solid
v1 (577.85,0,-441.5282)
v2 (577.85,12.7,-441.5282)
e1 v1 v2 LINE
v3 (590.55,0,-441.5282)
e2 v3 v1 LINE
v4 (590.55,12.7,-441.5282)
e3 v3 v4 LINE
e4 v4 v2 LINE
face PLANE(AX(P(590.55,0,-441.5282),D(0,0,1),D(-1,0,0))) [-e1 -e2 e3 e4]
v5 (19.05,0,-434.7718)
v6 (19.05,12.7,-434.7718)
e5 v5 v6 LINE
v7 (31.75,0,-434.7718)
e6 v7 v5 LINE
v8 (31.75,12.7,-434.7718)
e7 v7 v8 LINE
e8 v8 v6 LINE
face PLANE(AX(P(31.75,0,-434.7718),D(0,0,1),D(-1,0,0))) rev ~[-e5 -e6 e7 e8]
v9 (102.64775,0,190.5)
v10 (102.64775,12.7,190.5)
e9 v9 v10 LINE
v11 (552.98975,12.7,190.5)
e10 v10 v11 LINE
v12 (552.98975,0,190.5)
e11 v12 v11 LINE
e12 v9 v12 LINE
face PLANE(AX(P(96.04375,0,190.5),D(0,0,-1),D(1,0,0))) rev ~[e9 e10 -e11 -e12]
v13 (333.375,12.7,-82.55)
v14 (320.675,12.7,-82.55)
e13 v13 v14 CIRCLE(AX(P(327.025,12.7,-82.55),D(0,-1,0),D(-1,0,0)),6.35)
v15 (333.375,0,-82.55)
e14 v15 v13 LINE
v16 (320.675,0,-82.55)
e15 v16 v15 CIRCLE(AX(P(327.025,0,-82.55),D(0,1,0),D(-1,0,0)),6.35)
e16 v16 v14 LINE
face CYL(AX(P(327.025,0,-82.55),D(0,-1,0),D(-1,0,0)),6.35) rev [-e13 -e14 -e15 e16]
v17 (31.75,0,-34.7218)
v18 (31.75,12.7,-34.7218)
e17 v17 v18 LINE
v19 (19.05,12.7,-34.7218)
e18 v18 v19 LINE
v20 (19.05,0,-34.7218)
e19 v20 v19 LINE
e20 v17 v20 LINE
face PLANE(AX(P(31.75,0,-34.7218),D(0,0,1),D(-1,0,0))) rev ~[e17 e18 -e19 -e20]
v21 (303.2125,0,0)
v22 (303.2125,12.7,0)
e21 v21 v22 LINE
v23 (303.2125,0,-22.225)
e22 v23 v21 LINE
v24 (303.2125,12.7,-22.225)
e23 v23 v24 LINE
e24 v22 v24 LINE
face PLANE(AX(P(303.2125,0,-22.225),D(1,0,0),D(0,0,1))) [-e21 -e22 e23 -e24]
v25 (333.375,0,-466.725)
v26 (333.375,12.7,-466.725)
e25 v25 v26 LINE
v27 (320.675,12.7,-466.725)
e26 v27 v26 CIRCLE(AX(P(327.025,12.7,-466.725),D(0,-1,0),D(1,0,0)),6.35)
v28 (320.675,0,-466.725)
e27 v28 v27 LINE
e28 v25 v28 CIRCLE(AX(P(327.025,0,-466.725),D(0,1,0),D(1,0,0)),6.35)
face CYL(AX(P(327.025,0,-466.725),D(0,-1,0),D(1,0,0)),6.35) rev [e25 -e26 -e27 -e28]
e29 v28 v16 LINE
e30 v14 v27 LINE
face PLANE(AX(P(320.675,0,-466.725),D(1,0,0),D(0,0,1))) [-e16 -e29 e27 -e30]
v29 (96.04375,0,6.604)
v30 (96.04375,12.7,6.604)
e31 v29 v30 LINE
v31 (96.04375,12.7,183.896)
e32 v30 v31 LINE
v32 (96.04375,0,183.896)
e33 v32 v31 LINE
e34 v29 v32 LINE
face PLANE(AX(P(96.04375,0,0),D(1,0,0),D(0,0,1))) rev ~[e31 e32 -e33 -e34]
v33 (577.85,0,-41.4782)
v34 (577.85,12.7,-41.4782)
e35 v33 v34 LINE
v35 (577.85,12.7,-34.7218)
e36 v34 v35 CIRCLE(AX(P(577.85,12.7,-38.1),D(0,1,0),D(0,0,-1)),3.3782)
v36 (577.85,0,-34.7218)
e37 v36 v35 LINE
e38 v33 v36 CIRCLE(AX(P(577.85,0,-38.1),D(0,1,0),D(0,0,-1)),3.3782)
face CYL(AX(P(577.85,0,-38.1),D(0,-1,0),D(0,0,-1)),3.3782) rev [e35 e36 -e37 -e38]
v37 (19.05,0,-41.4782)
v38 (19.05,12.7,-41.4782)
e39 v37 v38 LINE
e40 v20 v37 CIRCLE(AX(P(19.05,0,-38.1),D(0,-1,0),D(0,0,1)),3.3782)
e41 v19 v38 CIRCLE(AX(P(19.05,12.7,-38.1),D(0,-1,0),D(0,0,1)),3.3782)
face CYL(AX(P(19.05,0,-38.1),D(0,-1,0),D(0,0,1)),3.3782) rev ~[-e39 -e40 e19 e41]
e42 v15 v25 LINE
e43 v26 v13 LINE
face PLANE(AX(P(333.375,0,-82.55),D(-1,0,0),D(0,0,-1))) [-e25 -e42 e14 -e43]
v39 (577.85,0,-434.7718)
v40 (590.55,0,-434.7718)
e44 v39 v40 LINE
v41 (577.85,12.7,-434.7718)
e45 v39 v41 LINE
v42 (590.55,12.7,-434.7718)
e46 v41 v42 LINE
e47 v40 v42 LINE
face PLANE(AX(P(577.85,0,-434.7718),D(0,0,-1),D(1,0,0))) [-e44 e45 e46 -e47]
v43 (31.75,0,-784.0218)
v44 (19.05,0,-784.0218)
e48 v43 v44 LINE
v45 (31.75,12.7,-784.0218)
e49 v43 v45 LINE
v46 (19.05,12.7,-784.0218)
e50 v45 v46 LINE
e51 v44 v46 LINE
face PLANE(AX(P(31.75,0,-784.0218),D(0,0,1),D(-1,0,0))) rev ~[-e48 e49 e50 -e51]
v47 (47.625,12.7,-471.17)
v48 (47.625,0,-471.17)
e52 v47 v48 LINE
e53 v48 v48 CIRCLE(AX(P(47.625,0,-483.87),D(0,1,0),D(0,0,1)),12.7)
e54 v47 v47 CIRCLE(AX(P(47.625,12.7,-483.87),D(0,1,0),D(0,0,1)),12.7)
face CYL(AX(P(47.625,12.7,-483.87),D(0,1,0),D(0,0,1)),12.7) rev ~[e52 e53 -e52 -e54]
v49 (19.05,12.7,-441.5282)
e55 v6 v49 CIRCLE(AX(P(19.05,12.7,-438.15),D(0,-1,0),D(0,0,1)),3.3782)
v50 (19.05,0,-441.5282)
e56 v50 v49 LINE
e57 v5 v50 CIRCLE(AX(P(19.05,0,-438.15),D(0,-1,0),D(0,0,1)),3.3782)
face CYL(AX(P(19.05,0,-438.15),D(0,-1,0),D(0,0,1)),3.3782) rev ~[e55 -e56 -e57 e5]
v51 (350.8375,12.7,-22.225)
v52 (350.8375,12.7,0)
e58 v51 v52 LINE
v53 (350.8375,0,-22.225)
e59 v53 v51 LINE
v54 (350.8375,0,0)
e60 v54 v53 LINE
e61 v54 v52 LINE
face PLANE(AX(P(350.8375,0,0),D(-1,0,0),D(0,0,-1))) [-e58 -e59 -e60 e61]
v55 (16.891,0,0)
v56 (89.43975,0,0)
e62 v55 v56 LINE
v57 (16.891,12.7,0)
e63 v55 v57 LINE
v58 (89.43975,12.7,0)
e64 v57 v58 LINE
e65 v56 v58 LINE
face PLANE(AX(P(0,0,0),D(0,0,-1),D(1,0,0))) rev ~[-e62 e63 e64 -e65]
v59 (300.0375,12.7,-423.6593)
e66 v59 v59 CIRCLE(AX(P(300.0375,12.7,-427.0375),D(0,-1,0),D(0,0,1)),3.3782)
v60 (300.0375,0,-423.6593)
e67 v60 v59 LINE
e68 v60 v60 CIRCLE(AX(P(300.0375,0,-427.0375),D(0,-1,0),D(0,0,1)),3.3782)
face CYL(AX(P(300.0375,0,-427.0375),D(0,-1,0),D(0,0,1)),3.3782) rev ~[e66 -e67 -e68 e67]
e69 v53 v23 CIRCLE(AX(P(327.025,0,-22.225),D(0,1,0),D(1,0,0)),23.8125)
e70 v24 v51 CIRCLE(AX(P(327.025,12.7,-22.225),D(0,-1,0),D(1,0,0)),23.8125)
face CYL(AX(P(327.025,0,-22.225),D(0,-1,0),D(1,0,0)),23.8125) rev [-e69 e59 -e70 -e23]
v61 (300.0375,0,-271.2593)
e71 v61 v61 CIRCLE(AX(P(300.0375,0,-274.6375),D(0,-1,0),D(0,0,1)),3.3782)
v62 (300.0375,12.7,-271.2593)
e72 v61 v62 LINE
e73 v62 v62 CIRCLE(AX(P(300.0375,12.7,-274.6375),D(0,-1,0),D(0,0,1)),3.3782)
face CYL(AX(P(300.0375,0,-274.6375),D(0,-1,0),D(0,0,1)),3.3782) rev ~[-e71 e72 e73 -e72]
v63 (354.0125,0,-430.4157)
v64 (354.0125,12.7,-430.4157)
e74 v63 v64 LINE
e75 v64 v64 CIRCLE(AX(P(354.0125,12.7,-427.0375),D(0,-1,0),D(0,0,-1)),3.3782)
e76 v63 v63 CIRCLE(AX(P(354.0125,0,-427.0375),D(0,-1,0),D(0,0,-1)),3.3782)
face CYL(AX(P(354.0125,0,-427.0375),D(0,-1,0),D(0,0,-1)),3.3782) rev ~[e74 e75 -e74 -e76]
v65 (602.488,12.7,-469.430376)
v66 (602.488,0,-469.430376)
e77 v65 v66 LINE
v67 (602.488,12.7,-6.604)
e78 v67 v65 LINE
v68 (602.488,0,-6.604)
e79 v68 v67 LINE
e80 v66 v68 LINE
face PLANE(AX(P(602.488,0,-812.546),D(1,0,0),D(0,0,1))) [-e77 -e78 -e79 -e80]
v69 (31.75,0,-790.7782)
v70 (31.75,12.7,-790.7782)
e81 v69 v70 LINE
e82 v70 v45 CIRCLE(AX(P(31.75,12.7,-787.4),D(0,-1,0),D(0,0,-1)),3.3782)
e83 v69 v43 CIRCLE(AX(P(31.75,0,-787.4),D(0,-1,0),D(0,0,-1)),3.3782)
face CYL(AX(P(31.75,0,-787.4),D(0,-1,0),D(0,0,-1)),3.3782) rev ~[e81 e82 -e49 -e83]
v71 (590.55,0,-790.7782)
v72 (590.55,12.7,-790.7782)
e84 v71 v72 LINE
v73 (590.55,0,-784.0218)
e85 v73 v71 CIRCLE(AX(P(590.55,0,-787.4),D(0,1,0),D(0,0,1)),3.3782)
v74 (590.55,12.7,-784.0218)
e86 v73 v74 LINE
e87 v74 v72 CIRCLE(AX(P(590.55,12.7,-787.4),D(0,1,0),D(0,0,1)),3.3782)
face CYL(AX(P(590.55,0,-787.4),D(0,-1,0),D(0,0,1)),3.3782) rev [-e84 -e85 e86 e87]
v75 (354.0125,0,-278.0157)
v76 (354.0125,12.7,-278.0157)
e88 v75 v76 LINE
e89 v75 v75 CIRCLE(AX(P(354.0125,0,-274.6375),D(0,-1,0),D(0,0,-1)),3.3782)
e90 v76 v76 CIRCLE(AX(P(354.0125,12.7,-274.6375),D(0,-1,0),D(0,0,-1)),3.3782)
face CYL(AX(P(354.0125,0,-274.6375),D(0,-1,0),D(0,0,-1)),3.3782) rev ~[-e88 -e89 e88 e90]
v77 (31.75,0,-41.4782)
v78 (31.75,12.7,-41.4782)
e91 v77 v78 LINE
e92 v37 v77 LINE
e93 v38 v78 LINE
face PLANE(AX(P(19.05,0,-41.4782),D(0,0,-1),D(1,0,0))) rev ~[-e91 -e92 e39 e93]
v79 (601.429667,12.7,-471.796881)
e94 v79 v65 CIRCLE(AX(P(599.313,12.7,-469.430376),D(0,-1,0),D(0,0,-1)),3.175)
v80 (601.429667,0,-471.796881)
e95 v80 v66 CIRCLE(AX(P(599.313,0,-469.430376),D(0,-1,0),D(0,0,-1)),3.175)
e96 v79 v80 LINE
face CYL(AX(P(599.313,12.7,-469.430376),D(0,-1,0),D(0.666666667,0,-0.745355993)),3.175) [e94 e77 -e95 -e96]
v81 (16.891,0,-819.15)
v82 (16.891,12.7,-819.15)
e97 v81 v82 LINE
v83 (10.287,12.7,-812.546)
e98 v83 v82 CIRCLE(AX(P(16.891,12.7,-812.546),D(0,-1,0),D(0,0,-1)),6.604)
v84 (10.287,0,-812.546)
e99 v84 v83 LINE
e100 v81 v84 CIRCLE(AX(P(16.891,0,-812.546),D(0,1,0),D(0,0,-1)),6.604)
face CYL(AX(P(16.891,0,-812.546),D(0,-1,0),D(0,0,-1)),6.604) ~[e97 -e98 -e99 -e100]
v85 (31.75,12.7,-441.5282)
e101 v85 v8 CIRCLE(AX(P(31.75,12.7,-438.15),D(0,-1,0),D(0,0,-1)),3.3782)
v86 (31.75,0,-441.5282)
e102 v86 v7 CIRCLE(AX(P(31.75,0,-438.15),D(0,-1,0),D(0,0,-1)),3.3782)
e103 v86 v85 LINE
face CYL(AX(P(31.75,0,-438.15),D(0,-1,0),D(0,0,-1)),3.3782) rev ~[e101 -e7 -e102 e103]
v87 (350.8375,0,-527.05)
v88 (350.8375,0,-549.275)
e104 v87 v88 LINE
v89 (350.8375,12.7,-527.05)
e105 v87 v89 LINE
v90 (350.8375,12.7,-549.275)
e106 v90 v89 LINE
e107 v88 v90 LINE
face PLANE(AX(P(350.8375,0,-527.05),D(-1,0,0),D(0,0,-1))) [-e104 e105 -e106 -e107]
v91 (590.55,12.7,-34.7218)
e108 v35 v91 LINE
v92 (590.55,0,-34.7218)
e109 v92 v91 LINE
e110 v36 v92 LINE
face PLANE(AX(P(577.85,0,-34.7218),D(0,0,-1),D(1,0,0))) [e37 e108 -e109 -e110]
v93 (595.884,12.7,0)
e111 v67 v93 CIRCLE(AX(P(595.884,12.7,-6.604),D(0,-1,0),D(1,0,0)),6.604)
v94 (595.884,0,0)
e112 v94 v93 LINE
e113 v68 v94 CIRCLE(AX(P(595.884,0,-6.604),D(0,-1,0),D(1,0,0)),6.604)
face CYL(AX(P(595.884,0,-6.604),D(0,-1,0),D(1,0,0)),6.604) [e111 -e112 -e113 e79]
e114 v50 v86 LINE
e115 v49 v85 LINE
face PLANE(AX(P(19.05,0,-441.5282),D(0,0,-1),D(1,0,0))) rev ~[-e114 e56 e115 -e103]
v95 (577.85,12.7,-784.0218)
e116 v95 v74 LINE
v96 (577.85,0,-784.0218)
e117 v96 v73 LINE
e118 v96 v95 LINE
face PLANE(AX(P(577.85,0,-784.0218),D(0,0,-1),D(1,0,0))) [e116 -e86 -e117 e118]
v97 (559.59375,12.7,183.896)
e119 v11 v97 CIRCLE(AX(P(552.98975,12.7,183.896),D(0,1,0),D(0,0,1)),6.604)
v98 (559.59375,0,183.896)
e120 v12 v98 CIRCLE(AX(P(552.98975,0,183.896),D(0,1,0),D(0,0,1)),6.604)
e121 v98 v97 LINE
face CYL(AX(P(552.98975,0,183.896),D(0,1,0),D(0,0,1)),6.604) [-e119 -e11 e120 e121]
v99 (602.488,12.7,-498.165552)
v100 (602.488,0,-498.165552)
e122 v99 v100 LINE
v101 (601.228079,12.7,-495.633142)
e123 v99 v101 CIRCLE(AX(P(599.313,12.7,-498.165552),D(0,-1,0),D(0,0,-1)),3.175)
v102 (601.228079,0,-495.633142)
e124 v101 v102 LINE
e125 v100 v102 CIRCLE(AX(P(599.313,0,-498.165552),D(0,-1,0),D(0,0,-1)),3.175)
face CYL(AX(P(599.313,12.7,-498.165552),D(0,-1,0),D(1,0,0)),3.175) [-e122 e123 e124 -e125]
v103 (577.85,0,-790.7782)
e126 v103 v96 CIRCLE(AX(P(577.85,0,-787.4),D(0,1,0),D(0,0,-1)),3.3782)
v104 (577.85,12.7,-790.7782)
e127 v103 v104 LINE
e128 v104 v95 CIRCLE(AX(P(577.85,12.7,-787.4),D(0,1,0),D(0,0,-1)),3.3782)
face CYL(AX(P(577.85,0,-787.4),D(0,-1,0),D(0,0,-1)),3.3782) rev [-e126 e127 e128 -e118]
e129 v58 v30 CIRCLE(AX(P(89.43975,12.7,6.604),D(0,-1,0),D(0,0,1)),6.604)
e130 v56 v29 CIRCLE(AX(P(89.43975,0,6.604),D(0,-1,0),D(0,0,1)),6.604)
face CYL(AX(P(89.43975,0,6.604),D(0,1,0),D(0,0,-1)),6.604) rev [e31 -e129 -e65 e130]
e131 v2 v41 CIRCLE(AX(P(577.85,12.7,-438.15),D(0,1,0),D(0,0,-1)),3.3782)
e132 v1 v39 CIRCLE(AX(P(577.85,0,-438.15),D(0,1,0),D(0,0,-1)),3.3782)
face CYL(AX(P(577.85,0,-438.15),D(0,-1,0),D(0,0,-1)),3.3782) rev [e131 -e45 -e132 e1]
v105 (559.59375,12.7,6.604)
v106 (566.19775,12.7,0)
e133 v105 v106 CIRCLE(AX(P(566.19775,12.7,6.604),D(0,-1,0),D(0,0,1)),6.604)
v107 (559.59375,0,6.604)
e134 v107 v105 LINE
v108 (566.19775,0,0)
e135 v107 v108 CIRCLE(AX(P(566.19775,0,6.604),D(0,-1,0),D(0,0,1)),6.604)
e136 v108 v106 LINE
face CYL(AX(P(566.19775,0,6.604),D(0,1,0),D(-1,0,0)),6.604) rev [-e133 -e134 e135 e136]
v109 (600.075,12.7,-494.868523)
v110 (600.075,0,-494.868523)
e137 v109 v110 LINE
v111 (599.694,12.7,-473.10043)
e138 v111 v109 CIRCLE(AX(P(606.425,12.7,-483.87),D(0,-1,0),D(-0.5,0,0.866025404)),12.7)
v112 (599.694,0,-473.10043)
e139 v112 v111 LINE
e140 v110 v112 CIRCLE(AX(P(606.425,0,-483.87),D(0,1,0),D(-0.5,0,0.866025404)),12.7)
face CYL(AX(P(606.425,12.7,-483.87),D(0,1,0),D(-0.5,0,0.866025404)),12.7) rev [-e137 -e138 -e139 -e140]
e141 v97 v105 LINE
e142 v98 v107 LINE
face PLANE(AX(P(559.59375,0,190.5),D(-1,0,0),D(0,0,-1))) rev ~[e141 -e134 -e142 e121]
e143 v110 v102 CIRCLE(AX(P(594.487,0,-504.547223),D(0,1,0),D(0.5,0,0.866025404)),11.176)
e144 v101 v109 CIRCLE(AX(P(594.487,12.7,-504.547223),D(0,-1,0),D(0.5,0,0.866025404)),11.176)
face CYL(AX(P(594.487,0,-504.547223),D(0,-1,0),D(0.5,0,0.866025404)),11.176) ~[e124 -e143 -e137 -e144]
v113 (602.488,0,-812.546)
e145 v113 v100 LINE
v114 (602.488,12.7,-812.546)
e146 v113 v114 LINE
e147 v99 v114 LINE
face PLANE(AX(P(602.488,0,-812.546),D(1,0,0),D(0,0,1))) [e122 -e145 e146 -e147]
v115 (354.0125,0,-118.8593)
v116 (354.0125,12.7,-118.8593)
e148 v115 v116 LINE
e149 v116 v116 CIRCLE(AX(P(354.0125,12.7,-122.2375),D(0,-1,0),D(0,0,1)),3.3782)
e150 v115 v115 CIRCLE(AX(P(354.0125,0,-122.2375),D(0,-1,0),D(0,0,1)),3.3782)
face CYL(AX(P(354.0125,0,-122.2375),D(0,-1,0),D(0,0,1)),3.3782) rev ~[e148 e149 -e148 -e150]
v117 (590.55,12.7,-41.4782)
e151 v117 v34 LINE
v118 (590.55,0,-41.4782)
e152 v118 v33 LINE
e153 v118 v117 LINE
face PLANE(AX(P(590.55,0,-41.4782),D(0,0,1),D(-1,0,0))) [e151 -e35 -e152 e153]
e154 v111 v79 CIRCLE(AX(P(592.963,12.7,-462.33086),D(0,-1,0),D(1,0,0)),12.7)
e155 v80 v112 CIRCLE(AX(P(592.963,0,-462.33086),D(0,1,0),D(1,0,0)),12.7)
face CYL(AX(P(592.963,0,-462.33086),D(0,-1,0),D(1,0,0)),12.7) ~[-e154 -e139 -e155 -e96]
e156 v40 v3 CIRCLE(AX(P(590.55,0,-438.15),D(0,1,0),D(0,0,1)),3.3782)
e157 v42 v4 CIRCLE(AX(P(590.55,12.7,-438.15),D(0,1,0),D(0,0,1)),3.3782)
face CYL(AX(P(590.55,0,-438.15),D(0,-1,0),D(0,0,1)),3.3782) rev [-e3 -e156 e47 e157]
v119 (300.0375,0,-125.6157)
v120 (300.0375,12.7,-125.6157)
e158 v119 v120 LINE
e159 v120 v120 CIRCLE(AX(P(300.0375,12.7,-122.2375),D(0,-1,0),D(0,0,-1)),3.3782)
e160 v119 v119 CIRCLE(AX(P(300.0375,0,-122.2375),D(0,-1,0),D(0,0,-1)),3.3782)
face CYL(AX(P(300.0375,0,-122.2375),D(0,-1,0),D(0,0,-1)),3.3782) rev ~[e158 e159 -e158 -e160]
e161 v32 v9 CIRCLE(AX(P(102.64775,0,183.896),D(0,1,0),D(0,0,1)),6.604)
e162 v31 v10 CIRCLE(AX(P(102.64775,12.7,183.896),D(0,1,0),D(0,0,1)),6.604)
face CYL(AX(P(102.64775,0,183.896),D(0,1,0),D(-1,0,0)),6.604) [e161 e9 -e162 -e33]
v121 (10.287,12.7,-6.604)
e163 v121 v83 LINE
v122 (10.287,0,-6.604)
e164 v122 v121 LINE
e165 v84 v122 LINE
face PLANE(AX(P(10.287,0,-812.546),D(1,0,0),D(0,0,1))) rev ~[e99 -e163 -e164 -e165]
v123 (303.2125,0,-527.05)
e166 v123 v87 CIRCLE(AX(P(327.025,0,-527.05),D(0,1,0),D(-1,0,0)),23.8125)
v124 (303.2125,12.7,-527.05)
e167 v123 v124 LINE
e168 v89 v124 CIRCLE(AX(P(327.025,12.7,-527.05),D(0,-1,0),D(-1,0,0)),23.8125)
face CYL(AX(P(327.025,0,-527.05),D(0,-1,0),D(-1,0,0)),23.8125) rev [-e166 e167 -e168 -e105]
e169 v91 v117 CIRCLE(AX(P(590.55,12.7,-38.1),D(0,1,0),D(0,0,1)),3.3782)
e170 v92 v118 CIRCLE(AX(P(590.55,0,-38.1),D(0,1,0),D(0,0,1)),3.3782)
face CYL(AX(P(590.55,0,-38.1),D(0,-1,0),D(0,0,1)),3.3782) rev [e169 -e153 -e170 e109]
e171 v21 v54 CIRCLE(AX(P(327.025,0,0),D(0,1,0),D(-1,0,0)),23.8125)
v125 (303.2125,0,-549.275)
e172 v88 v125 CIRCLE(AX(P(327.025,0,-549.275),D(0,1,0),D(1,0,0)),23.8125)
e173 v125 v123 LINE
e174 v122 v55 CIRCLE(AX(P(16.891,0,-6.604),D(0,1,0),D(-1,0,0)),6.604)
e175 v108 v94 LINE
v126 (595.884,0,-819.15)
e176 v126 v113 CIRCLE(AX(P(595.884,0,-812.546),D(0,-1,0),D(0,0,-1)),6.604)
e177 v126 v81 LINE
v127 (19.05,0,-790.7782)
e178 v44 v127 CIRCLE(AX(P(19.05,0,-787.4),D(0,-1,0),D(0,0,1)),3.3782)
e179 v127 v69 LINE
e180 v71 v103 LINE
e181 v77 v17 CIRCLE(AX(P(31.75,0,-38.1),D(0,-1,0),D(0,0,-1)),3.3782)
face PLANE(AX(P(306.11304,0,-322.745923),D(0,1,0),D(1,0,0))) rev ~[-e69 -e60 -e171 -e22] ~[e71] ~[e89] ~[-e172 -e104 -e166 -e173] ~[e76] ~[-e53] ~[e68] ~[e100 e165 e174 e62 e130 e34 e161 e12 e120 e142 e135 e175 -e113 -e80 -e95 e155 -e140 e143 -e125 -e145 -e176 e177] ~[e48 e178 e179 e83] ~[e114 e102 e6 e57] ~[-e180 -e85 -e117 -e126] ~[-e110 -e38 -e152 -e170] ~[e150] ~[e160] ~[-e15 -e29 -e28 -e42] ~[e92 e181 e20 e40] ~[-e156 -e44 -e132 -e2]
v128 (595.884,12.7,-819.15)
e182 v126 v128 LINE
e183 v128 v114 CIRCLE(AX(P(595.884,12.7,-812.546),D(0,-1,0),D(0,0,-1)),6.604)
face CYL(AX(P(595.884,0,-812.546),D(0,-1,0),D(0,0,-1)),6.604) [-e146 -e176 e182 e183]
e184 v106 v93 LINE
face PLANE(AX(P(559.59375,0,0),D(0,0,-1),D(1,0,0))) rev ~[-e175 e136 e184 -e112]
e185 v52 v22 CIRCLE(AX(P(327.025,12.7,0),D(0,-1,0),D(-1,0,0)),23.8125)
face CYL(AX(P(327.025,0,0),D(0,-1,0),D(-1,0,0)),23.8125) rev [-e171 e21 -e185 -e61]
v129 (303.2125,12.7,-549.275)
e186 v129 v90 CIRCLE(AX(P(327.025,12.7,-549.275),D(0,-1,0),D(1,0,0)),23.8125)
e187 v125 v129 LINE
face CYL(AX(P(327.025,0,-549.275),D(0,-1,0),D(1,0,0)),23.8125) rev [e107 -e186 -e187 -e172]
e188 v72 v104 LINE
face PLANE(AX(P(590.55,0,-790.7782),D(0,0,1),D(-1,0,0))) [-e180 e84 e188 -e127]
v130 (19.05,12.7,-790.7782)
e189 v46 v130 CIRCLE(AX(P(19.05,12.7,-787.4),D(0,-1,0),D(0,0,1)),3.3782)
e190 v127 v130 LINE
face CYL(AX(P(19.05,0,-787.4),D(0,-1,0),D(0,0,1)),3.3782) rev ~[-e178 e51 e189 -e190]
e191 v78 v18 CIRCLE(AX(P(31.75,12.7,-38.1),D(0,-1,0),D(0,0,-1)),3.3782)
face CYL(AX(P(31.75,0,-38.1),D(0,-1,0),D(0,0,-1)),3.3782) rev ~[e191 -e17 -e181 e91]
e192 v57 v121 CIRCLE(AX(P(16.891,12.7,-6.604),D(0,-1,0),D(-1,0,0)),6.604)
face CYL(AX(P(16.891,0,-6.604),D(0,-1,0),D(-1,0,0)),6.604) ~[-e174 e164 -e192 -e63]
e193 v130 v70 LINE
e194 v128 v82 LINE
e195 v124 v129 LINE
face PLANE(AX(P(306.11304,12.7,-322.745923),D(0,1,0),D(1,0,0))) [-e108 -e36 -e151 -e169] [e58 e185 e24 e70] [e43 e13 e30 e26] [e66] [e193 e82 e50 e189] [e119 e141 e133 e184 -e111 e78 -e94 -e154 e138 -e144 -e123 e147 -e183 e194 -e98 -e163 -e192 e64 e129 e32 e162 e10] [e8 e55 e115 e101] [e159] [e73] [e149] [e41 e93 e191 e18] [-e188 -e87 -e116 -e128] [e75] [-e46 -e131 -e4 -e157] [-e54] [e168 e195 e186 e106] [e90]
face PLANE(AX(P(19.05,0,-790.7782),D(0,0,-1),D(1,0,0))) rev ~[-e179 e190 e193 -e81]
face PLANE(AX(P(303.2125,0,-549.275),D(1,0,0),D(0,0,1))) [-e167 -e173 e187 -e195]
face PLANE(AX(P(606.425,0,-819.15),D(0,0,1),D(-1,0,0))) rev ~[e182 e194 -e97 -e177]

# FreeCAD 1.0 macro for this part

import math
import FreeCAD as App
import Part
import Sketcher

V = App.Vector
Q = App.Units.Quantity


def edges_at(feature, points):
    """Names of the edges that pass closest to the given points."""
    edges = feature.Shape.Edges
    near = lambda p: min(range(len(edges)), key=lambda i: edges[i].distToShape(Part.Vertex(*p))[0])
    return sorted({f"Edge{near(p) + 1}" for p in points})

doc = App.newDocument("Part")
body = doc.addObject("PartDesign::Body", "Body")

sketch1 = body.newObject("Sketcher::SketchObject", "Sketch")
sketch1.AttachmentSupport = (doc.getObject("XZ_Plane"), [""])
sketch1.MapMode = "FlatFace"
sketch1.addGeometry(Part.LineSegment(V(0, 0, 0), V(96, 0, 0)), False)
sketch1.addGeometry(Part.LineSegment(V(96, 0, 0), V(96, 190.5, 0)), False)
sketch1.addGeometry(Part.LineSegment(V(96, 190.5, 0), V(559.6, 190.5, 0)), False)
sketch1.addGeometry(Part.LineSegment(V(559.6, 190.5, 0), V(559.6, 0, 0)), False)
sketch1.addGeometry(Part.LineSegment(V(559.6, 0, 0), V(606.4, 0, 0)), False)
sketch1.addGeometry(Part.LineSegment(V(606.4, 0, 0), V(606.4, -819.1, 0)), False)
sketch1.addGeometry(Part.LineSegment(V(606.4, -819.1, 0), V(0, -819.1, 0)), False)
sketch1.addGeometry(Part.LineSegment(V(0, -819.1, 0), V(0, 0, 0)), False)
sketch1.addGeometry(Part.ArcOfCircle(Part.Circle(V(19.1, -38.1, 0), V(0, 0, 1), 3.4), math.radians(90), math.radians(270)), False)
sketch1.addGeometry(Part.LineSegment(V(19.1, -41.5, 0), V(31.8, -41.5, 0)), False)
sketch1.addGeometry(Part.ArcOfCircle(Part.Circle(V(31.8, -38.1, 0), V(0, 0, 1), 3.4), math.radians(-90), math.radians(90)), False)
sketch1.addGeometry(Part.LineSegment(V(31.8, -34.7, 0), V(19.1, -34.7, 0)), False)
sketch1.addGeometry(Part.LineSegment(V(577.9, -41.5, 0), V(590.5, -41.5, 0)), False)
sketch1.addGeometry(Part.ArcOfCircle(Part.Circle(V(590.5, -38.1, 0), V(0, 0, 1), 3.4), math.radians(-90), math.radians(90)), False)
sketch1.addGeometry(Part.LineSegment(V(590.5, -34.7, 0), V(577.9, -34.7, 0)), False)
sketch1.addGeometry(Part.ArcOfCircle(Part.Circle(V(577.9, -38.1, 0), V(0, 0, 1), 3.4), math.radians(90), math.radians(270)), False)
sketch1.addGeometry(Part.ArcOfCircle(Part.Circle(V(19.1, -438.1, 0), V(0, 0, 1), 3.4), math.radians(90), math.radians(270)), False)
sketch1.addGeometry(Part.LineSegment(V(19.1, -441.5, 0), V(31.8, -441.5, 0)), False)
sketch1.addGeometry(Part.ArcOfCircle(Part.Circle(V(31.8, -438.1, 0), V(0, 0, 1), 3.4), math.radians(-90), math.radians(90)), False)
sketch1.addGeometry(Part.LineSegment(V(31.8, -434.8, 0), V(19.1, -434.8, 0)), False)
sketch1.addGeometry(Part.ArcOfCircle(Part.Circle(V(31.8, -787.4, 0), V(0, 0, 1), 3.4), math.radians(-90), math.radians(90)), False)
sketch1.addGeometry(Part.LineSegment(V(31.8, -784, 0), V(19.1, -784, 0)), False)
sketch1.addGeometry(Part.ArcOfCircle(Part.Circle(V(19.1, -787.4, 0), V(0, 0, 1), 3.4), math.radians(90), math.radians(270)), False)
sketch1.addGeometry(Part.LineSegment(V(19.1, -790.8, 0), V(31.8, -790.8, 0)), False)
sketch1.addGeometry(Part.LineSegment(V(577.9, -441.5, 0), V(590.5, -441.5, 0)), False)
sketch1.addGeometry(Part.ArcOfCircle(Part.Circle(V(590.5, -438.1, 0), V(0, 0, 1), 3.4), math.radians(-90), math.radians(90)), False)
sketch1.addGeometry(Part.LineSegment(V(590.5, -434.8, 0), V(577.9, -434.8, 0)), False)
sketch1.addGeometry(Part.ArcOfCircle(Part.Circle(V(577.9, -438.1, 0), V(0, 0, 1), 3.4), math.radians(90), math.radians(270)), False)
sketch1.addGeometry(Part.LineSegment(V(590.5, -784, 0), V(577.9, -784, 0)), False)
sketch1.addGeometry(Part.ArcOfCircle(Part.Circle(V(577.9, -787.4, 0), V(0, 0, 1), 3.4), math.radians(90), math.radians(270)), False)
sketch1.addGeometry(Part.LineSegment(V(577.9, -790.8, 0), V(590.5, -790.8, 0)), False)
sketch1.addGeometry(Part.ArcOfCircle(Part.Circle(V(590.5, -787.4, 0), V(0, 0, 1), 3.4), math.radians(-90), math.radians(90)), False)
sketch1.addConstraint(Sketcher.Constraint("Coincident", 0, 2, 1, 1))
sketch1.addConstraint(Sketcher.Constraint("Coincident", 1, 2, 2, 1))
sketch1.addConstraint(Sketcher.Constraint("Coincident", 2, 2, 3, 1))
sketch1.addConstraint(Sketcher.Constraint("Coincident", 3, 2, 4, 1))
sketch1.addConstraint(Sketcher.Constraint("Coincident", 4, 2, 5, 1))
sketch1.addConstraint(Sketcher.Constraint("Coincident", 5, 2, 6, 1))
sketch1.addConstraint(Sketcher.Constraint("Coincident", 6, 2, 7, 1))
sketch1.addConstraint(Sketcher.Constraint("Coincident", 7, 2, 0, 1))
sketch1.addConstraint(Sketcher.Constraint("Tangent", 8, 2, 9, 1))
sketch1.addConstraint(Sketcher.Constraint("Tangent", 9, 2, 10, 1))
sketch1.addConstraint(Sketcher.Constraint("Tangent", 10, 2, 11, 1))
sketch1.addConstraint(Sketcher.Constraint("Tangent", 11, 2, 8, 1))
sketch1.addConstraint(Sketcher.Constraint("Tangent", 12, 2, 13, 1))
sketch1.addConstraint(Sketcher.Constraint("Tangent", 13, 2, 14, 1))
sketch1.addConstraint(Sketcher.Constraint("Tangent", 14, 2, 15, 1))
sketch1.addConstraint(Sketcher.Constraint("Tangent", 15, 2, 12, 1))
sketch1.addConstraint(Sketcher.Constraint("Tangent", 16, 2, 17, 1))
sketch1.addConstraint(Sketcher.Constraint("Tangent", 17, 2, 18, 1))
sketch1.addConstraint(Sketcher.Constraint("Tangent", 18, 2, 19, 1))
sketch1.addConstraint(Sketcher.Constraint("Tangent", 19, 2, 16, 1))
sketch1.addConstraint(Sketcher.Constraint("Tangent", 20, 2, 21, 1))
sketch1.addConstraint(Sketcher.Constraint("Tangent", 21, 2, 22, 1))
sketch1.addConstraint(Sketcher.Constraint("Tangent", 22, 2, 23, 1))
sketch1.addConstraint(Sketcher.Constraint("Tangent", 23, 2, 20, 1))
sketch1.addConstraint(Sketcher.Constraint("Tangent", 24, 2, 25, 1))
sketch1.addConstraint(Sketcher.Constraint("Tangent", 25, 2, 26, 1))
sketch1.addConstraint(Sketcher.Constraint("Tangent", 26, 2, 27, 1))
sketch1.addConstraint(Sketcher.Constraint("Tangent", 27, 2, 24, 1))
sketch1.addConstraint(Sketcher.Constraint("Tangent", 28, 2, 29, 1))
sketch1.addConstraint(Sketcher.Constraint("Tangent", 29, 2, 30, 1))
sketch1.addConstraint(Sketcher.Constraint("Tangent", 30, 2, 31, 1))
sketch1.addConstraint(Sketcher.Constraint("Tangent", 31, 2, 28, 1))
sketch1.addConstraint(Sketcher.Constraint("Horizontal", 0))
sketch1.addConstraint(Sketcher.Constraint("Vertical", 1))
sketch1.addConstraint(Sketcher.Constraint("Horizontal", 2))
sketch1.addConstraint(Sketcher.Constraint("Vertical", 3))
sketch1.addConstraint(Sketcher.Constraint("Horizontal", 4))
sketch1.addConstraint(Sketcher.Constraint("Vertical", 5))
sketch1.addConstraint(Sketcher.Constraint("Horizontal", 6))
sketch1.addConstraint(Sketcher.Constraint("Vertical", 7))
sketch1.addConstraint(Sketcher.Constraint("Horizontal", 9))
sketch1.addConstraint(Sketcher.Constraint("Horizontal", 11))
sketch1.addConstraint(Sketcher.Constraint("Horizontal", 12))
sketch1.addConstraint(Sketcher.Constraint("Horizontal", 14))
sketch1.addConstraint(Sketcher.Constraint("Horizontal", 17))
sketch1.addConstraint(Sketcher.Constraint("Horizontal", 19))
sketch1.addConstraint(Sketcher.Constraint("Horizontal", 21))
sketch1.addConstraint(Sketcher.Constraint("Horizontal", 23))
sketch1.addConstraint(Sketcher.Constraint("Horizontal", 24))
sketch1.addConstraint(Sketcher.Constraint("Horizontal", 26))
sketch1.addConstraint(Sketcher.Constraint("Horizontal", 28))
sketch1.addConstraint(Sketcher.Constraint("Horizontal", 30))
sketch1.addConstraint(Sketcher.Constraint("Coincident", 7, 2, -1, 1))
sketch1.addConstraint(Sketcher.Constraint("Equal", 10, 13))
sketch1.addConstraint(Sketcher.Constraint("Equal", 15, 16))
sketch1.addConstraint(Sketcher.Constraint("Equal", 18, 20))
sketch1.addConstraint(Sketcher.Constraint("Equal", 22, 25))
sketch1.addConstraint(Sketcher.Constraint("Equal", 27, 29))
sketch1.addConstraint(Sketcher.Constraint("PointOnObject", 3, 2, -1))
sketch1.addConstraint(Sketcher.Constraint("Horizontal", 10, 3, 13, 3))
sketch1.addConstraint(Sketcher.Constraint("Horizontal", 18, 3, 25, 3))
sketch1.addConstraint(Sketcher.Constraint("Horizontal", 22, 3, 29, 3))
sketch1.addConstraint(Sketcher.Constraint("Vertical", 8, 3, 16, 3))
sketch1.addConstraint(Sketcher.Constraint("Vertical", 10, 3, 18, 3))
sketch1.addConstraint(Sketcher.Constraint("Vertical", 18, 3, 20, 3))
sketch1.addConstraint(Sketcher.Constraint("Vertical", 16, 3, 22, 3))
sketch1.addConstraint(Sketcher.Constraint("Vertical", 13, 3, 25, 3))
sketch1.addConstraint(Sketcher.Constraint("Vertical", 15, 3, 27, 3))
sketch1.addConstraint(Sketcher.Constraint("Vertical", 27, 3, 29, 3))
sketch1.addConstraint(Sketcher.Constraint("Vertical", 25, 3, 31, 3))
sketch1.addConstraint(Sketcher.Constraint("Equal", 11, 12))
sketch1.addConstraint(Sketcher.Constraint("DistanceX", 9, 1, 9, 2, Q("0.5 in")))
sketch1.addConstraint(Sketcher.Constraint("DistanceY", 1, 1, 1, 2, Q("7.5 in")))
sketch1.addConstraint(Sketcher.Constraint("DistanceY", 20, 3, -1, 1, Q("31 in")))
sketch1.addConstraint(Sketcher.Constraint("Radius", 8, Q("0.133 in")))
sketch1.addConstraint(Sketcher.Constraint("DistanceX", 10, 3, 13, 3, Q("22 in")))
sketch1.addConstraint(Sketcher.Constraint("DistanceY", 10, 3, 1, 2, Q("9 in")))
sketch1.addConstraint(Sketcher.Constraint("DistanceY", 5, 2, 25, 3, Q("15 in")))
sketch1.addConstraint(Sketcher.Constraint("DistanceX", 2, 1, 2, 2, Q("18.25 in")))
sketch1.addConstraint(Sketcher.Constraint("DistanceY", 5, 2, 5, 1, Q("32.25 in")))
sketch1.addConstraint(Sketcher.Constraint("DistanceX", 0, 1, 0, 2, Q("3.78125 in")))
sketch1.addConstraint(Sketcher.Constraint("DistanceX", 4, 1, 4, 2, Q("1.84375 in")))
sketch1.addConstraint(Sketcher.Constraint("DistanceX", -1, 1, 8, 3, Q("0.75 in")))
pad1 = body.newObject("PartDesign::Pad", "Pad")
pad1.Profile = sketch1
pad1.Length = Q("0.5 in")
pad1.Reversed = True
doc.recompute()

fillet = body.newObject("PartDesign::Fillet", "Fillet")
fillet.Base = (pad1, edges_at(pad1, [(559.594, 6.35, 0), (96.044, 6.35, 0)]))
fillet.Radius = Q("0.26 in")
doc.recompute()

fillet2 = body.newObject("PartDesign::Fillet", "Fillet001")
fillet2.Base = (fillet, edges_at(fillet, [
    (0, 6.35, -819.15),
    (606.425, 6.35, -819.15),
    (606.425, 6.35, 0),
    (559.594, 6.35, 190.5),
    (96.044, 6.35, 190.5),
    (0, 6.35, 0),
]))
fillet2.Radius = Q("0.26 in")

sketch2 = body.newObject("Sketcher::SketchObject", "Sketch001")
sketch2.AttachmentSupport = (doc.getObject("XZ_Plane"), [""])
sketch2.MapMode = "FlatFace"
sketch2.AttachmentOffset = App.Placement(V(0, 0, -0.5 * 25.4), App.Rotation())
sketch2.addGeometry(Part.Circle(V(48, -484, 0), V(0, 0, 1), 13), False)
sketch2.addGeometry(Part.LineSegment(V(606, -462, 0), V(606, -506, 0)), False)
sketch2.addGeometry(Part.ArcOfCircle(Part.Circle(V(594, -506, 0), V(0, 0, 1), 13), math.radians(0), math.radians(60)), False)
sketch2.addGeometry(Part.ArcOfCircle(Part.Circle(V(606, -484, 0), V(0, 0, 1), 13), math.radians(120), math.radians(240)), False)
sketch2.addGeometry(Part.ArcOfCircle(Part.Circle(V(594, -462, 0), V(0, 0, 1), 13), math.radians(-60), math.radians(0)), False)
sketch2.addConstraint(Sketcher.Constraint("Tangent", 1, 2, 2, 1))
sketch2.addConstraint(Sketcher.Constraint("Tangent", 2, 2, 3, 2))
sketch2.addConstraint(Sketcher.Constraint("Tangent", 3, 1, 4, 1))
sketch2.addConstraint(Sketcher.Constraint("Tangent", 4, 2, 1, 1))
sketch2.addConstraint(Sketcher.Constraint("Vertical", 1))
sketch2.addConstraint(Sketcher.Constraint("Equal", 0, 2))
sketch2.addConstraint(Sketcher.Constraint("Equal", 2, 3))
sketch2.addConstraint(Sketcher.Constraint("Equal", 3, 4))
sketch2.addConstraint(Sketcher.Constraint("Horizontal", 0, 3, 3, 3))
sketch2.addConstraint(Sketcher.Constraint("Vertical", 3, 3, 1, 2))
sketch2.addConstraint(Sketcher.Constraint("Diameter", 0, Q("1 in")))
sketch2.addConstraint(Sketcher.Constraint("DistanceX", 0, 3, 3, 3, Q("22 in")))
sketch2.addConstraint(Sketcher.Constraint("DistanceY", 0, 3, -1, 1, Q("19.05 in")))
sketch2.addConstraint(Sketcher.Constraint("DistanceX", -1, 1, 0, 3, Q("1.875 in")))
pocket1 = body.newObject("PartDesign::Pocket", "Pocket")
pocket1.Profile = sketch2
pocket1.Type = "ThroughAll"
pocket1.Reversed = True

sketch3 = body.newObject("Sketcher::SketchObject", "Sketch002")
sketch3.AttachmentSupport = (doc.getObject("XZ_Plane"), [""])
sketch3.MapMode = "FlatFace"
sketch3.addGeometry(Part.LineSegment(V(351, -549, 0), V(351, -527, 0)), False)
sketch3.addGeometry(Part.ArcOfCircle(Part.Circle(V(327, -527, 0), V(0, 0, 1), 24), math.radians(0), math.radians(180)), False)
sketch3.addGeometry(Part.LineSegment(V(303, -527, 0), V(303, -549, 0)), False)
sketch3.addGeometry(Part.ArcOfCircle(Part.Circle(V(327, -549, 0), V(0, 0, 1), 24), math.radians(180), math.radians(360)), False)
sketch3.addGeometry(Part.LineSegment(V(351, -22, 0), V(351, 0, 0)), False)
sketch3.addGeometry(Part.ArcOfCircle(Part.Circle(V(327, 0, 0), V(0, 0, 1), 24), math.radians(0), math.radians(180)), False)
sketch3.addGeometry(Part.LineSegment(V(303, 0, 0), V(303, -22, 0)), False)
sketch3.addGeometry(Part.ArcOfCircle(Part.Circle(V(327, -22, 0), V(0, 0, 1), 24), math.radians(180), math.radians(360)), False)
sketch3.addConstraint(Sketcher.Constraint("Tangent", 0, 2, 1, 1))
sketch3.addConstraint(Sketcher.Constraint("Tangent", 1, 2, 2, 1))
sketch3.addConstraint(Sketcher.Constraint("Tangent", 2, 2, 3, 1))
sketch3.addConstraint(Sketcher.Constraint("Tangent", 3, 2, 0, 1))
sketch3.addConstraint(Sketcher.Constraint("Tangent", 4, 2, 5, 1))
sketch3.addConstraint(Sketcher.Constraint("Tangent", 5, 2, 6, 1))
sketch3.addConstraint(Sketcher.Constraint("Tangent", 6, 2, 7, 1))
sketch3.addConstraint(Sketcher.Constraint("Tangent", 7, 2, 4, 1))
sketch3.addConstraint(Sketcher.Constraint("Vertical", 0))
sketch3.addConstraint(Sketcher.Constraint("Vertical", 2))
sketch3.addConstraint(Sketcher.Constraint("Vertical", 4))
sketch3.addConstraint(Sketcher.Constraint("Vertical", 6))
sketch3.addConstraint(Sketcher.Constraint("Equal", 3, 5))
sketch3.addConstraint(Sketcher.Constraint("PointOnObject", 5, 3, -1))
sketch3.addConstraint(Sketcher.Constraint("Vertical", 3, 3, 5, 3))
sketch3.addConstraint(Sketcher.Constraint("Equal", 2, 4))
sketch3.addConstraint(Sketcher.Constraint("Radius", 1, Q("0.9375 in")))
sketch3.addConstraint(Sketcher.Constraint("DistanceY", 0, 1, 0, 2, Q("0.875 in")))
sketch3.addConstraint(Sketcher.Constraint("DistanceY", 1, 3, -1, 1, Q("20.75 in")))
sketch3.addConstraint(Sketcher.Constraint("DistanceX", -1, 1, 1, 3, Q("12.875 in")))
pocket2 = body.newObject("PartDesign::Pocket", "Pocket001")
pocket2.Profile = sketch3
pocket2.Type = "ThroughAll"

sketch4 = body.newObject("Sketcher::SketchObject", "Sketch003")
sketch4.AttachmentSupport = (doc.getObject("XZ_Plane"), [""])
sketch4.MapMode = "FlatFace"
sketch4.addGeometry(Part.LineSegment(V(321, -83, 0), V(321, -467, 0)), False)
sketch4.addGeometry(Part.ArcOfCircle(Part.Circle(V(327, -467, 0), V(0, 0, 1), 6), math.radians(180), math.radians(360)), False)
sketch4.addGeometry(Part.LineSegment(V(333, -467, 0), V(333, -83, 0)), False)
sketch4.addGeometry(Part.ArcOfCircle(Part.Circle(V(327, -83, 0), V(0, 0, 1), 6), math.radians(0), math.radians(180)), False)
sketch4.addConstraint(Sketcher.Constraint("Tangent", 0, 2, 1, 1))
sketch4.addConstraint(Sketcher.Constraint("Tangent", 1, 2, 2, 1))
sketch4.addConstraint(Sketcher.Constraint("Tangent", 2, 2, 3, 1))
sketch4.addConstraint(Sketcher.Constraint("Tangent", 3, 2, 0, 1))
sketch4.addConstraint(Sketcher.Constraint("Vertical", 0))
sketch4.addConstraint(Sketcher.Constraint("Vertical", 2))
sketch4.addConstraint(Sketcher.Constraint("Radius", 1, Q("0.25 in")))
sketch4.addConstraint(Sketcher.Constraint("DistanceY", 0, 2, 0, 1, Q("15.125 in")))
sketch4.addConstraint(Sketcher.Constraint("DistanceY", 3, 3, -1, 1, Q("3.25 in")))
sketch4.addConstraint(Sketcher.Constraint("DistanceX", -1, 1, 1, 3, Q("12.875 in")))
pocket3 = body.newObject("PartDesign::Pocket", "Pocket002")
pocket3.Profile = sketch4
pocket3.Type = "ThroughAll"

sketch5 = body.newObject("Sketcher::SketchObject", "Sketch004")
sketch5.AttachmentSupport = (doc.getObject("XZ_Plane"), [""])
sketch5.MapMode = "FlatFace"
sketch5.addGeometry(Part.Circle(V(354, -274.6, 0), V(0, 0, 1), 3.4), False)
sketch5.addGeometry(Part.Circle(V(354, -427, 0), V(0, 0, 1), 3.4), False)
sketch5.addGeometry(Part.Circle(V(354, -122.2, 0), V(0, 0, 1), 3.4), False)
sketch5.addGeometry(Part.Circle(V(300, -427, 0), V(0, 0, 1), 3.4), False)
sketch5.addGeometry(Part.Circle(V(300, -274.6, 0), V(0, 0, 1), 3.4), False)
sketch5.addGeometry(Part.Circle(V(300, -122.2, 0), V(0, 0, 1), 3.4), False)
sketch5.addConstraint(Sketcher.Constraint("Equal", 0, 1))
sketch5.addConstraint(Sketcher.Constraint("Equal", 1, 2))
sketch5.addConstraint(Sketcher.Constraint("Equal", 2, 3))
sketch5.addConstraint(Sketcher.Constraint("Equal", 3, 4))
sketch5.addConstraint(Sketcher.Constraint("Equal", 4, 5))
sketch5.addConstraint(Sketcher.Constraint("Horizontal", 1, 3, 3, 3))
sketch5.addConstraint(Sketcher.Constraint("Horizontal", 0, 3, 4, 3))
sketch5.addConstraint(Sketcher.Constraint("Horizontal", 2, 3, 5, 3))
sketch5.addConstraint(Sketcher.Constraint("Vertical", 0, 3, 1, 3))
sketch5.addConstraint(Sketcher.Constraint("Vertical", 1, 3, 2, 3))
sketch5.addConstraint(Sketcher.Constraint("Vertical", 3, 3, 4, 3))
sketch5.addConstraint(Sketcher.Constraint("Vertical", 4, 3, 5, 3))
sketch5.addConstraint(Sketcher.Constraint("Diameter", 0, Q("0.266 in")))
sketch5.addConstraint(Sketcher.Constraint("DistanceY", 1, 3, 0, 3, Q("6 in")))
sketch5.addConstraint(Sketcher.Constraint("DistanceY", 0, 3, 2, 3, Q("6 in")))
sketch5.addConstraint(Sketcher.Constraint("DistanceX", -1, 1, 0, 3, Q("13.9375 in")))
sketch5.addConstraint(Sketcher.Constraint("DistanceY", 0, 3, -1, 1, Q("10.8125 in")))
sketch5.addConstraint(Sketcher.Constraint("DistanceX", -1, 1, 3, 3, Q("11.8125 in")))
pocket4 = body.newObject("PartDesign::Pocket", "Pocket003")
pocket4.Profile = sketch5
pocket4.Type = "ThroughAll"

sketch6 = body.newObject("Sketcher::SketchObject", "Sketch005")
sketch6.AttachmentSupport = (doc.getObject("XZ_Plane"), [""])
sketch6.MapMode = "FlatFace"
sketch6.addGeometry(Part.ArcOfCircle(Part.Circle(V(599.06, -812.55, 0), V(0, 0, 1), 6.6), math.radians(-90), math.radians(0)), False)
sketch6.addGeometry(Part.LineSegment(V(599.06, -819.15, 0), V(599.82, -819.15, 0)), False)
sketch6.addGeometry(Part.ArcOfCircle(Part.Circle(V(599.82, -812.55, 0), V(0, 0, 1), 6.6), math.radians(-90), math.radians(0)), False)
sketch6.addGeometry(Part.LineSegment(V(606.42, -812.55, 0), V(606.42, -505.87, 0)), False)
sketch6.addGeometry(Part.ArcOfCircle(Part.Circle(V(593.73, -505.87, 0), V(0, 0, 1), 12.7), math.radians(0), math.radians(60)), False)
sketch6.addGeometry(Part.ArcOfCircle(Part.Circle(V(594.49, -504.55, 0), V(0, 0, 1), 11.18), math.radians(0), math.radians(60)), False)
sketch6.addGeometry(Part.LineSegment(V(605.66, -504.55, 0), V(605.66, -812.55, 0)), False)
sketch6.addGeometry(Part.ArcOfCircle(Part.Circle(V(7.37, -812.55, 0), V(0, 0, 1), 6.6), math.radians(180), math.radians(270)), False)
sketch6.addGeometry(Part.LineSegment(V(0.76, -812.55, 0), V(0.76, -6.6, 0)), False)
sketch6.addGeometry(Part.ArcOfCircle(Part.Circle(V(7.37, -6.6, 0), V(0, 0, 1), 6.6), math.radians(90), math.radians(180)), False)
sketch6.addGeometry(Part.LineSegment(V(7.37, 0, 0), V(6.6, 0, 0)), False)
sketch6.addGeometry(Part.ArcOfCircle(Part.Circle(V(6.6, -6.6, 0), V(0, 0, 1), 6.6), math.radians(90), math.radians(180)), False)
sketch6.addGeometry(Part.LineSegment(V(0, -6.6, 0), V(0, -812.55, 0)), False)
sketch6.addGeometry(Part.ArcOfCircle(Part.Circle(V(6.6, -812.55, 0), V(0, 0, 1), 6.6), math.radians(180), math.radians(270)), False)
sketch6.addGeometry(Part.LineSegment(V(6.6, -819.15, 0), V(7.37, -819.15, 0)), False)
sketch6.addGeometry(Part.ArcOfCircle(Part.Circle(V(592.96, -462.33, 0), V(0, 0, 1), 12.7), math.radians(-58), math.radians(0)), False)
sketch6.addGeometry(Part.ArcOfCircle(Part.Circle(V(606.43, -483.87, 0), V(0, 0, 1), 12.7), math.radians(120), math.radians(122.01)), False)
sketch6.addGeometry(Part.ArcOfCircle(Part.Circle(V(593.73, -461.87, 0), V(0, 0, 1), 12.7), math.radians(-60), math.radians(0)), False)
sketch6.addGeometry(Part.LineSegment(V(606.42, -461.87, 0), V(606.42, -6.6, 0)), False)
sketch6.addGeometry(Part.ArcOfCircle(Part.Circle(V(599.82, -6.6, 0), V(0, 0, 1), 6.6), math.radians(0), math.radians(90)), False)
sketch6.addGeometry(Part.LineSegment(V(599.82, 0, 0), V(599.06, 0, 0)), False)
sketch6.addGeometry(Part.ArcOfCircle(Part.Circle(V(599.06, -6.6, 0), V(0, 0, 1), 6.6), math.radians(0), math.radians(90)), False)
sketch6.addGeometry(Part.LineSegment(V(605.66, -6.6, 0), V(605.66, -462.33, 0)), False)
sketch6.addConstraint(Sketcher.Constraint("Tangent", 0, 1, 1, 1))
sketch6.addConstraint(Sketcher.Constraint("Tangent", 1, 2, 2, 1))
sketch6.addConstraint(Sketcher.Constraint("Tangent", 2, 2, 3, 1))
sketch6.addConstraint(Sketcher.Constraint("Tangent", 3, 2, 4, 1))
sketch6.addConstraint(Sketcher.Constraint("Tangent", 4, 2, 5, 2))
sketch6.addConstraint(Sketcher.Constraint("Tangent", 5, 1, 6, 1))
sketch6.addConstraint(Sketcher.Constraint("Tangent", 6, 2, 0, 2))
sketch6.addConstraint(Sketcher.Constraint("Tangent", 7, 1, 8, 1))
sketch6.addConstraint(Sketcher.Constraint("Tangent", 8, 2, 9, 2))
sketch6.addConstraint(Sketcher.Constraint("Tangent", 9, 1, 10, 1))
sketch6.addConstraint(Sketcher.Constraint("Tangent", 10, 2, 11, 1))
sketch6.addConstraint(Sketcher.Constraint("Tangent", 11, 2, 12, 1))
sketch6.addConstraint(Sketcher.Constraint("Tangent", 12, 2, 13, 1))
sketch6.addConstraint(Sketcher.Constraint("Tangent", 13, 2, 14, 1))
sketch6.addConstraint(Sketcher.Constraint("Tangent", 14, 2, 7, 2))
sketch6.addConstraint(Sketcher.Constraint("Tangent", 15, 1, 16, 2))
sketch6.addConstraint(Sketcher.Constraint("Tangent", 16, 1, 17, 1))
sketch6.addConstraint(Sketcher.Constraint("Tangent", 17, 2, 18, 1))
sketch6.addConstraint(Sketcher.Constraint("Tangent", 18, 2, 19, 1))
sketch6.addConstraint(Sketcher.Constraint("Tangent", 19, 2, 20, 1))
sketch6.addConstraint(Sketcher.Constraint("Tangent", 20, 2, 21, 2))
sketch6.addConstraint(Sketcher.Constraint("Tangent", 21, 1, 22, 1))
sketch6.addConstraint(Sketcher.Constraint("Tangent", 22, 2, 15, 2))
sketch6.addConstraint(Sketcher.Constraint("Horizontal", 1))
sketch6.addConstraint(Sketcher.Constraint("Vertical", 3))
sketch6.addConstraint(Sketcher.Constraint("Vertical", 6))
sketch6.addConstraint(Sketcher.Constraint("Vertical", 8))
sketch6.addConstraint(Sketcher.Constraint("Horizontal", 10))
sketch6.addConstraint(Sketcher.Constraint("Vertical", 12))
sketch6.addConstraint(Sketcher.Constraint("Horizontal", 14))
sketch6.addConstraint(Sketcher.Constraint("Vertical", 18))
sketch6.addConstraint(Sketcher.Constraint("Horizontal", 20))
sketch6.addConstraint(Sketcher.Constraint("Vertical", 22))
sketch6.addConstraint(Sketcher.Constraint("Equal", 0, 2))
sketch6.addConstraint(Sketcher.Constraint("Equal", 2, 7))
sketch6.addConstraint(Sketcher.Constraint("Equal", 7, 9))
sketch6.addConstraint(Sketcher.Constraint("Equal", 9, 11))
sketch6.addConstraint(Sketcher.Constraint("Equal", 11, 13))
sketch6.addConstraint(Sketcher.Constraint("Equal", 4, 15))
sketch6.addConstraint(Sketcher.Constraint("Equal", 15, 17))
sketch6.addConstraint(Sketcher.Constraint("Equal", 13, 19))
sketch6.addConstraint(Sketcher.Constraint("Equal", 19, 21))
sketch6.addConstraint(Sketcher.Constraint("PointOnObject", 9, 1, -1))
sketch6.addConstraint(Sketcher.Constraint("PointOnObject", 11, 2, -2))
sketch6.addConstraint(Sketcher.Constraint("PointOnObject", 19, 2, -1))
sketch6.addConstraint(Sketcher.Constraint("Horizontal", 2, 3, 7, 3))
sketch6.addConstraint(Sketcher.Constraint("Vertical", 4, 3, 17, 3))
sketch6.addConstraint(Sketcher.Constraint("Vertical", 0, 3, 21, 3))
sketch6.addConstraint(Sketcher.Constraint("Vertical", 16, 3, 2, 2))
sketch6.addConstraint(Sketcher.Constraint("Vertical", 4, 2, 16, 1))
sketch6.addConstraint(Sketcher.Constraint("Equal", 1, 10))
sketch6.addConstraint(Sketcher.Constraint("Radius", 4, Q("0.5 in")))
sketch6.addConstraint(Sketcher.Constraint("Radius", 16, Q("0.5000001 in")))
sketch6.addConstraint(Sketcher.Constraint("Radius", 0, Q("0.26 in")))
sketch6.addConstraint(Sketcher.Constraint("Radius", 5, Q("0.44 in")))
sketch6.addConstraint(Sketcher.Constraint("DistanceY", 8, 1, 8, 2, Q("31.73 in")))
sketch6.addConstraint(Sketcher.Constraint("DistanceY", 0, 1, 16, 3, Q("13.1999999 in")))
sketch6.addConstraint(Sketcher.Constraint("DistanceX", -1, 1, 15, 1, Q("23.61 in")))
sketch6.addConstraint(Sketcher.Constraint("DistanceY", 3, 1, 3, 2, Q("306.678955 mm")))
pocket5 = body.newObject("PartDesign::Pocket", "Pocket004")
pocket5.Profile = sketch6
pocket5.Type = "ThroughAll"

sketch7 = body.newObject("Sketcher::SketchObject", "Sketch006")
sketch7.AttachmentSupport = (doc.getObject("XZ_Plane"), [""])
sketch7.MapMode = "FlatFace"
sketch7.addGeometry(Part.ArcOfCircle(Part.Circle(V(595.9, -812.5, 0), V(0, 0, 1), 6.6), math.radians(-90), math.radians(0)), False)
sketch7.addGeometry(Part.LineSegment(V(595.9, -819.1, 0), V(599.1, -819.1, 0)), False)
sketch7.addGeometry(Part.ArcOfCircle(Part.Circle(V(599.1, -812.5, 0), V(0, 0, 1), 6.6), math.radians(-90), math.radians(0)), False)
sketch7.addGeometry(Part.LineSegment(V(605.7, -812.5, 0), V(605.7, -6.6, 0)), False)
sketch7.addGeometry(Part.ArcOfCircle(Part.Circle(V(599.1, -6.6, 0), V(0, 0, 1), 6.6), math.radians(0), math.radians(90)), False)
sketch7.addGeometry(Part.LineSegment(V(599.1, 0, 0), V(595.9, 0, 0)), False)
sketch7.addGeometry(Part.ArcOfCircle(Part.Circle(V(595.9, -6.6, 0), V(0, 0, 1), 6.6), math.radians(0), math.radians(90)), False)
sketch7.addGeometry(Part.LineSegment(V(602.5, -6.6, 0), V(602.5, -812.5, 0)), False)
sketch7.addGeometry(Part.LineSegment(V(0.8, -6.6, 0), V(0.8, -812.5, 0)), False)
sketch7.addGeometry(Part.ArcOfCircle(Part.Circle(V(7.4, -812.5, 0), V(0, 0, 1), 6.6), math.radians(180), math.radians(270)), False)
sketch7.addGeometry(Part.LineSegment(V(7.4, -819.1, 0), V(16.9, -819.1, 0)), False)
sketch7.addGeometry(Part.ArcOfCircle(Part.Circle(V(16.9, -812.5, 0), V(0, 0, 1), 6.6), math.radians(180), math.radians(270)), False)
sketch7.addGeometry(Part.LineSegment(V(10.3, -812.5, 0), V(10.3, -6.6, 0)), False)
sketch7.addGeometry(Part.ArcOfCircle(Part.Circle(V(16.9, -6.6, 0), V(0, 0, 1), 6.6), math.radians(90), math.radians(180)), False)
sketch7.addGeometry(Part.LineSegment(V(16.9, 0, 0), V(7.4, 0, 0)), False)
sketch7.addGeometry(Part.ArcOfCircle(Part.Circle(V(7.4, -6.6, 0), V(0, 0, 1), 6.6), math.radians(90), math.radians(180)), False)
sketch7.addConstraint(Sketcher.Constraint("Tangent", 0, 1, 1, 1))
sketch7.addConstraint(Sketcher.Constraint("Tangent", 1, 2, 2, 1))
sketch7.addConstraint(Sketcher.Constraint("Tangent", 2, 2, 3, 1))
sketch7.addConstraint(Sketcher.Constraint("Tangent", 3, 2, 4, 1))
sketch7.addConstraint(Sketcher.Constraint("Tangent", 4, 2, 5, 1))
sketch7.addConstraint(Sketcher.Constraint("Tangent", 5, 2, 6, 2))
sketch7.addConstraint(Sketcher.Constraint("Tangent", 6, 1, 7, 1))
sketch7.addConstraint(Sketcher.Constraint("Tangent", 7, 2, 0, 2))
sketch7.addConstraint(Sketcher.Constraint("Tangent", 8, 2, 9, 1))
sketch7.addConstraint(Sketcher.Constraint("Tangent", 9, 2, 10, 1))
sketch7.addConstraint(Sketcher.Constraint("Tangent", 10, 2, 11, 2))
sketch7.addConstraint(Sketcher.Constraint("Tangent", 11, 1, 12, 1))
sketch7.addConstraint(Sketcher.Constraint("Tangent", 12, 2, 13, 2))
sketch7.addConstraint(Sketcher.Constraint("Tangent", 13, 1, 14, 1))
sketch7.addConstraint(Sketcher.Constraint("Tangent", 14, 2, 15, 1))
sketch7.addConstraint(Sketcher.Constraint("Tangent", 15, 2, 8, 1))
sketch7.addConstraint(Sketcher.Constraint("Horizontal", 1))
sketch7.addConstraint(Sketcher.Constraint("Vertical", 3))
sketch7.addConstraint(Sketcher.Constraint("Horizontal", 5))
sketch7.addConstraint(Sketcher.Constraint("Vertical", 7))
sketch7.addConstraint(Sketcher.Constraint("Vertical", 8))
sketch7.addConstraint(Sketcher.Constraint("Horizontal", 10))
sketch7.addConstraint(Sketcher.Constraint("Vertical", 12))
sketch7.addConstraint(Sketcher.Constraint("Horizontal", 14))
sketch7.addConstraint(Sketcher.Constraint("Equal", 0, 2))
sketch7.addConstraint(Sketcher.Constraint("Equal", 2, 4))
sketch7.addConstraint(Sketcher.Constraint("Equal", 4, 6))
sketch7.addConstraint(Sketcher.Constraint("Equal", 6, 9))
sketch7.addConstraint(Sketcher.Constraint("Equal", 9, 11))
sketch7.addConstraint(Sketcher.Constraint("Equal", 11, 13))
sketch7.addConstraint(Sketcher.Constraint("Equal", 13, 15))
sketch7.addConstraint(Sketcher.Constraint("PointOnObject", 4, 2, -1))
sketch7.addConstraint(Sketcher.Constraint("PointOnObject", 13, 1, -1))
sketch7.addConstraint(Sketcher.Constraint("Horizontal", 2, 3, 9, 3))
sketch7.addConstraint(Sketcher.Constraint("Radius", 0, Q("0.26 in")))
sketch7.addConstraint(Sketcher.Constraint("DistanceY", 3, 1, 3, 2, Q("31.73 in")))
sketch7.addConstraint(Sketcher.Constraint("DistanceX", 1, 1, 1, 2, Q("0.125 in")))
sketch7.addConstraint(Sketcher.Constraint("DistanceX", 10, 1, 10, 2, Q("0.375 in")))
sketch7.addConstraint(Sketcher.Constraint("DistanceX", -1, 1, 0, 3, Q("23.46 in")))
sketch7.addConstraint(Sketcher.Constraint("DistanceX", -1, 1, 9, 3, Q("0.29 in")))
pocket6 = body.newObject("PartDesign::Pocket", "Pocket005")
pocket6.Profile = sketch7
pocket6.Type = "ThroughAll"
doc.recompute()

fillet3 = body.newObject("PartDesign::Fillet", "Fillet002")
fillet3.Base = (pocket6, edges_at(pocket6, [(602.488, 6.35, -470.731), (602.488, 6.35, -496.744)]))
fillet3.Radius = Q("0.125 in")

doc.recompute()
